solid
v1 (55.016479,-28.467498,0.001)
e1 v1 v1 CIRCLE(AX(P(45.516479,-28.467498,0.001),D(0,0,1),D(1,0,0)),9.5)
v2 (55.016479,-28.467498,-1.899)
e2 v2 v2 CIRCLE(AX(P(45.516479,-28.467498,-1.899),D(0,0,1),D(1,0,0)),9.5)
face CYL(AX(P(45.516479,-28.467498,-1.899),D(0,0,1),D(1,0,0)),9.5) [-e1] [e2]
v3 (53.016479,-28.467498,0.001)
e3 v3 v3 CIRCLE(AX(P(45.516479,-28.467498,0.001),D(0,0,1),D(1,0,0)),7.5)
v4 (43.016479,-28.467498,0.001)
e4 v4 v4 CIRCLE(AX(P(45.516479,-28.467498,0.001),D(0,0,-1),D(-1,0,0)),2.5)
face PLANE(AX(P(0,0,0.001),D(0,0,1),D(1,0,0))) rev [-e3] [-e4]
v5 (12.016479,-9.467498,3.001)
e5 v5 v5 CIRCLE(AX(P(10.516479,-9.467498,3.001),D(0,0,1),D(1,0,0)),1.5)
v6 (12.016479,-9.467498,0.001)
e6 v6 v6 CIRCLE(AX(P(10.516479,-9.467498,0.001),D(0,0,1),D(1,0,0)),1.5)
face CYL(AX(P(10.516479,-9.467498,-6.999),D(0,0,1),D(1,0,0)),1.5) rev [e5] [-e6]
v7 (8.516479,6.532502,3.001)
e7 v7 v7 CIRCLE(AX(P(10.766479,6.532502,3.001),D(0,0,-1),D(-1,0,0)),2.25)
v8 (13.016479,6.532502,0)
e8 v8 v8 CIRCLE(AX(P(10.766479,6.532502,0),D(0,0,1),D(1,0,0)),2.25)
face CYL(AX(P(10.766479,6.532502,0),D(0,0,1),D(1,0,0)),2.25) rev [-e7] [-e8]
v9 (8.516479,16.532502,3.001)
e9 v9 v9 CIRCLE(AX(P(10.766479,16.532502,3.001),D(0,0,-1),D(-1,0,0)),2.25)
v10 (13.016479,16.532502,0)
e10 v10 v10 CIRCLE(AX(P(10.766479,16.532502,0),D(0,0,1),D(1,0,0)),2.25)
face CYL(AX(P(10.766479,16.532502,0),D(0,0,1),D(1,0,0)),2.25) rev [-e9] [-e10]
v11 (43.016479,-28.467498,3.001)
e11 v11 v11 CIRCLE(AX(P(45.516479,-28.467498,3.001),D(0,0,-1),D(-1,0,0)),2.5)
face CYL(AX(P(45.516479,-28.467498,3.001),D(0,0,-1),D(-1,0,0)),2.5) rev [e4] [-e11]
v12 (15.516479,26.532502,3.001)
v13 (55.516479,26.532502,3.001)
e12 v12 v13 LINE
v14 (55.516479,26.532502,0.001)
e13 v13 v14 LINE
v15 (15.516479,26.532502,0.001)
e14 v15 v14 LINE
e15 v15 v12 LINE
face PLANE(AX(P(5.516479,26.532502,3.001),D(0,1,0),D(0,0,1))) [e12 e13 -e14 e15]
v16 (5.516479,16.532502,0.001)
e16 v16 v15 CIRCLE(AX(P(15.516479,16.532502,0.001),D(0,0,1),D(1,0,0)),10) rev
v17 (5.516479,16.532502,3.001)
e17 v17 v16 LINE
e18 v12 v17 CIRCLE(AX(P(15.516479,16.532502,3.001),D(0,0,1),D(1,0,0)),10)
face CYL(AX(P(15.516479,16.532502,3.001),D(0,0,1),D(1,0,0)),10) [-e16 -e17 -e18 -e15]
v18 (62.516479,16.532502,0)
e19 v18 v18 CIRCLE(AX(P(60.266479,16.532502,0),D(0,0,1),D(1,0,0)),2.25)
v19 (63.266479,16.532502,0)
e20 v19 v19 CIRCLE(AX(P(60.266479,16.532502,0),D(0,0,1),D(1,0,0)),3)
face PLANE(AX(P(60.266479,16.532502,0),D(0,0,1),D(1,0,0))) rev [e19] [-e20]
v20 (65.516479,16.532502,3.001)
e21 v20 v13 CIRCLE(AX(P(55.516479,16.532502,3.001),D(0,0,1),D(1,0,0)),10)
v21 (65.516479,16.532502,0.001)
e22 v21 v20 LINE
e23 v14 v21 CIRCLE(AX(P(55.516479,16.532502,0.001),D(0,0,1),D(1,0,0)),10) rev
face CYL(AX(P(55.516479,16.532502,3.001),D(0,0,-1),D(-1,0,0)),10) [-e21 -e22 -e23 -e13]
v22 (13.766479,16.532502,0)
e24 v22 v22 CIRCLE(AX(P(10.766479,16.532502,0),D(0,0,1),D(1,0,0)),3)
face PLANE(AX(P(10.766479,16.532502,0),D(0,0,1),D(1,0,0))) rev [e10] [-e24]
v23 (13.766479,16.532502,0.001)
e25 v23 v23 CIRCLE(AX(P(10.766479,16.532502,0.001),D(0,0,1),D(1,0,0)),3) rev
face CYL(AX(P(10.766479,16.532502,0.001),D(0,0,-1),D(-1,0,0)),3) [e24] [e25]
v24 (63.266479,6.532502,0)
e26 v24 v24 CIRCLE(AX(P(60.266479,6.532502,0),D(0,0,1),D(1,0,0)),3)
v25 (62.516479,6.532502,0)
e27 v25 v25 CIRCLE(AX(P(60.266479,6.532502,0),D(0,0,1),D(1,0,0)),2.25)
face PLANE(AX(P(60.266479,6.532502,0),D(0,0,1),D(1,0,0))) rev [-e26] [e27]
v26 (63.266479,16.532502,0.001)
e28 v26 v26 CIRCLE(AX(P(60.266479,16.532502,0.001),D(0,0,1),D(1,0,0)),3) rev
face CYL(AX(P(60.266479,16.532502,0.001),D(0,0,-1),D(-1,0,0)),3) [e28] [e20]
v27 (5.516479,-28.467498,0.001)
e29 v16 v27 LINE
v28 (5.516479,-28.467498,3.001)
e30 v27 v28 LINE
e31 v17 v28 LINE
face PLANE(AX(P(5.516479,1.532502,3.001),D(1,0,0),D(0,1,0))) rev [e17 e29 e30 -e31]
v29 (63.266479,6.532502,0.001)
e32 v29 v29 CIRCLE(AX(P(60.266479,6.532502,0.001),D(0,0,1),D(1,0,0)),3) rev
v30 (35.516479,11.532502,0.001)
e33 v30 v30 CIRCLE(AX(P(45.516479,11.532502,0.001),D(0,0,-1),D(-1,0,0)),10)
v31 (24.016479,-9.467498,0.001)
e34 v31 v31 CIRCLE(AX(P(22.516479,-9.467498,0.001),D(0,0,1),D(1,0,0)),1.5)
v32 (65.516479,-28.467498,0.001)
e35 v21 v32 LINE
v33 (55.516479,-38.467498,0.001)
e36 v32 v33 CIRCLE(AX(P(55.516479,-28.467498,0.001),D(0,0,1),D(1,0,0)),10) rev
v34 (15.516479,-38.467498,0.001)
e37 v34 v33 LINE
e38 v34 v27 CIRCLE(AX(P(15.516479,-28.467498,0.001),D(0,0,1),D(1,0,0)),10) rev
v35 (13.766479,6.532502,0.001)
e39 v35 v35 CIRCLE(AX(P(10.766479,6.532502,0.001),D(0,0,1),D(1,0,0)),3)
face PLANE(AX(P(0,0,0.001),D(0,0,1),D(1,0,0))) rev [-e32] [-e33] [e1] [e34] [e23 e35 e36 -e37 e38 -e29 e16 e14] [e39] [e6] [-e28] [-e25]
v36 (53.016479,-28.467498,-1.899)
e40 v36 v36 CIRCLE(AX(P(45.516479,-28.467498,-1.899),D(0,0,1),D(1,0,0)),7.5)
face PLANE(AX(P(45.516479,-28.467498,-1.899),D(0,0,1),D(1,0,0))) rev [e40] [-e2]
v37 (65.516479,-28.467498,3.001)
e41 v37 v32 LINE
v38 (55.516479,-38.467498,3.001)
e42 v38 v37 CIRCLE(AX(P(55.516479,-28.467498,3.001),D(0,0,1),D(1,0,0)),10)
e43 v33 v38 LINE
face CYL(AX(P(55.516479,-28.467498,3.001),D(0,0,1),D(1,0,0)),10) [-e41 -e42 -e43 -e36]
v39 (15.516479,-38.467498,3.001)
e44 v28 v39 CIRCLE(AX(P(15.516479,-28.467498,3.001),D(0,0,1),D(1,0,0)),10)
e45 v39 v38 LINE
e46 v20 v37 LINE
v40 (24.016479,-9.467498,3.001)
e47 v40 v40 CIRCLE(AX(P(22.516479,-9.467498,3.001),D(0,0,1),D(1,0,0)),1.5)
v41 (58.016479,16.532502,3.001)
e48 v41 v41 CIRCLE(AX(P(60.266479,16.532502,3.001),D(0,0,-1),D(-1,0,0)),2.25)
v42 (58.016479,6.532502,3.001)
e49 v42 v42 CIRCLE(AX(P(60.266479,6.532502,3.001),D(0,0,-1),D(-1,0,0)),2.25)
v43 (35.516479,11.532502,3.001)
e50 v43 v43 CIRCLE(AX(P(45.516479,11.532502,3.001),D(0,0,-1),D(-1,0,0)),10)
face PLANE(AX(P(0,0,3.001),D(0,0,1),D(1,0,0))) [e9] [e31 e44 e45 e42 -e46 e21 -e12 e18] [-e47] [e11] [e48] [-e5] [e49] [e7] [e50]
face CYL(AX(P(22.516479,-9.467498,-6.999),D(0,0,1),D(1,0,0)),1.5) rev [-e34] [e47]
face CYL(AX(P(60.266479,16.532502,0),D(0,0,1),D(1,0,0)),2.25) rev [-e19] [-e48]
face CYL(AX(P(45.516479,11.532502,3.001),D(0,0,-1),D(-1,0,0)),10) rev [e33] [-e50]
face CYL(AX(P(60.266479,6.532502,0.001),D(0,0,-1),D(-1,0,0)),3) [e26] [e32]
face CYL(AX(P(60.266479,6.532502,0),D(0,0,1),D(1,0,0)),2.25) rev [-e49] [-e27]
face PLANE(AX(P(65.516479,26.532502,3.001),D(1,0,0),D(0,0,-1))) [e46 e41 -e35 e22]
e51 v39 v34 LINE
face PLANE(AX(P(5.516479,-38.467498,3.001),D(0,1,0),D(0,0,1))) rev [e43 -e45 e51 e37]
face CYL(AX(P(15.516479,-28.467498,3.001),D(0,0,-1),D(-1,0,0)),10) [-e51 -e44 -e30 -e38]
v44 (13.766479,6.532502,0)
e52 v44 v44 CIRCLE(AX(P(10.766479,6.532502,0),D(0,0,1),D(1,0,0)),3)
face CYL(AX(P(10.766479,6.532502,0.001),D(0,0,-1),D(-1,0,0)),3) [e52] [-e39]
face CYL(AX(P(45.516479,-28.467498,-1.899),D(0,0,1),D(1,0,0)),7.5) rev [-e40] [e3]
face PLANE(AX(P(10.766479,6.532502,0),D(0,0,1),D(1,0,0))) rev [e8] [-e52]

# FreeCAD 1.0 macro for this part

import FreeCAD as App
import Part
import Sketcher
from FreeCAD import Vector
Q = App.Units.Quantity


def edges_at(feature, points):
    """Names of the edges that pass closest to the given points."""
    edges = feature.Shape.Edges
    near = lambda p: min(range(len(edges)), key=lambda i: edges[i].distToShape(Part.Vertex(*p))[0])
    return sorted({f"Edge{near(p) + 1}" for p in points})


def add_polygon(sketch, points):
    """Adds a closed chain of lines whose ends are joined by coincident constraints."""
    first, n = sketch.GeometryCount, len(points)
    for a, b in zip(points, points[1:] + points[:1]):
        sketch.addGeometry(Part.LineSegment(App.Vector(*a, 0), App.Vector(*b, 0)), False)
    for i in range(n):
        sketch.addConstraint(Sketcher.Constraint("Coincident", first + i, 2, first + (i + 1) % n, 1))

doc = App.newDocument("Part")
body = doc.addObject("PartDesign::Body", "Body")

# Sketch on XY plane
sketch1 = body.newObject("Sketcher::SketchObject", "Sketch")
sketch1.AttachmentSupport = (doc.getObject("XY_Plane"), [""])
sketch1.MapMode = "FlatFace"
sketch1.addGeometry(Part.Circle(Vector(60.266479, 16.532502, 0), Vector(0, 0, 1), 3), False)
sketch1.addConstraint(Sketcher.Constraint("Diameter", 0, Q("6 mm")))
sketch1.addConstraint(Sketcher.Constraint("DistanceY", -1, 1, 0, 3, Q("16.532502 mm")))
sketch1.addConstraint(Sketcher.Constraint("DistanceX", -1, 1, 0, 3, Q("60.266479 mm")))
pad1 = body.newObject("PartDesign::Pad", "Pad")
pad1.Profile = sketch1
pad1.Length = 0.001
body2 = doc.addObject("PartDesign::Body", "Body001")

# Sketch on XY plane
sketch2 = body2.newObject("Sketcher::SketchObject", "Sketch001")
sketch2.AttachmentSupport = (doc.getObject("XY_Plane001"), [""])
sketch2.MapMode = "FlatFace"
sketch2.addGeometry(Part.Circle(Vector(60.266479, 6.532502, 0), Vector(0, 0, 1), 3), False)
sketch2.addConstraint(Sketcher.Constraint("Diameter", 0, Q("6 mm")))
sketch2.addConstraint(Sketcher.Constraint("DistanceY", -1, 1, 0, 3, Q("6.532502 mm")))
sketch2.addConstraint(Sketcher.Constraint("DistanceX", -1, 1, 0, 3, Q("60.266479 mm")))
pad2 = body2.newObject("PartDesign::Pad", "Pad001")
pad2.Profile = sketch2
pad2.Length = 0.001
body3 = doc.addObject("PartDesign::Body", "Body002")

# Sketch on XY plane
sketch3 = body3.newObject("Sketcher::SketchObject", "Sketch002")
sketch3.AttachmentSupport = (doc.getObject("XY_Plane002"), [""])
sketch3.MapMode = "FlatFace"
sketch3.addGeometry(Part.Circle(Vector(10.766479, 6.532502, 0), Vector(0, 0, 1), 3), False)
sketch3.addConstraint(Sketcher.Constraint("Diameter", 0, Q("6 mm")))
sketch3.addConstraint(Sketcher.Constraint("DistanceY", -1, 1, 0, 3, Q("6.532502 mm")))
sketch3.addConstraint(Sketcher.Constraint("DistanceX", -1, 1, 0, 3, Q("10.766479 mm")))
pad3 = body3.newObject("PartDesign::Pad", "Pad002")
pad3.Profile = sketch3
pad3.Length = 0.001
body4 = doc.addObject("PartDesign::Body", "Body003")

# Sketch on XY plane
sketch4 = body4.newObject("Sketcher::SketchObject", "Sketch003")
sketch4.AttachmentSupport = (doc.getObject("XY_Plane003"), [""])
sketch4.MapMode = "FlatFace"
sketch4.addGeometry(Part.Circle(Vector(10.766479, 16.532502, 0), Vector(0, 0, 1), 3), False)
sketch4.addConstraint(Sketcher.Constraint("Diameter", 0, Q("6 mm")))
sketch4.addConstraint(Sketcher.Constraint("DistanceY", -1, 1, 0, 3, Q("16.532502 mm")))
sketch4.addConstraint(Sketcher.Constraint("DistanceX", -1, 1, 0, 3, Q("10.766479 mm")))
pad4 = body4.newObject("PartDesign::Pad", "Pad003")
pad4.Profile = sketch4
pad4.Length = 0.001
body5 = doc.addObject("PartDesign::Body", "Body004")
body5.AllowCompound = True

# Sketch on XY plane
sketch5 = body5.newObject("Sketcher::SketchObject", "Sketch004")
sketch5.AttachmentSupport = (doc.getObject("XY_Plane004"), [""])
sketch5.MapMode = "FlatFace"
sketch5.AttachmentOffset = App.Placement(Vector(0, 0, 0.001), App.Rotation())
sketch5.addGeometry(Part.Circle(Vector(10.766479, 16.532502, 0), Vector(0, 0, 1), 2.25), False)
sketch5.addGeometry(Part.Circle(Vector(10.766479, 6.532502, 0), Vector(0, 0, 1), 2.25), False)
sketch5.addGeometry(Part.Circle(Vector(60.266479, 16.532502, 0), Vector(0, 0, 1), 2.25), False)
sketch5.addGeometry(Part.Circle(Vector(60.266479, 6.532502, 0), Vector(0, 0, 1), 2.25), False)
sketch5.addConstraint(Sketcher.Constraint("Equal", 0, 1))
sketch5.addConstraint(Sketcher.Constraint("Equal", 1, 2))
sketch5.addConstraint(Sketcher.Constraint("Equal", 2, 3))
sketch5.addConstraint(Sketcher.Constraint("Horizontal", 0, 3, 2, 3))
sketch5.addConstraint(Sketcher.Constraint("Horizontal", 1, 3, 3, 3))
sketch5.addConstraint(Sketcher.Constraint("Vertical", 0, 3, 1, 3))
sketch5.addConstraint(Sketcher.Constraint("Vertical", 2, 3, 3, 3))
sketch5.addConstraint(Sketcher.Constraint("Diameter", 0, Q("4.5 mm")))
sketch5.addConstraint(Sketcher.Constraint("DistanceY", 1, 3, 0, 3, Q("10 mm")))
sketch5.addConstraint(Sketcher.Constraint("DistanceX", 0, 3, 2, 3, Q("49.5 mm")))
sketch5.addConstraint(Sketcher.Constraint("DistanceY", -1, 1, 0, 3, Q("16.532502 mm")))
sketch5.addConstraint(Sketcher.Constraint("DistanceX", -1, 1, 0, 3, Q("10.766479 mm")))
pad5 = body5.newObject("PartDesign::Pad", "Pad004")
pad5.Profile = sketch5
pad5.Type = "TwoLengths"
pad5.Length = 1
pad5.Length2 = 1.001
doc.recompute()

body6 = doc.addObject("PartDesign::Body", "Body005")
body6.BaseFeature = body5
boolean = body.newObject("PartDesign::Boolean", "Boolean")
boolean.Type = "Cut"
boolean.addObjects([body6])
doc.recompute()

body7 = doc.addObject("PartDesign::Body", "Body006")
body7.BaseFeature = body5
boolean2 = body2.newObject("PartDesign::Boolean", "Boolean001")
boolean2.Type = "Cut"
boolean2.addObjects([body7])
doc.recompute()

body8 = doc.addObject("PartDesign::Body", "Body007")
body8.BaseFeature = body5
boolean3 = body3.newObject("PartDesign::Boolean", "Boolean002")
boolean3.Type = "Cut"
boolean3.addObjects([body8])
doc.recompute()

boolean4 = body4.newObject("PartDesign::Boolean", "Boolean003")
boolean4.Type = "Cut"
boolean4.addObjects([body5])
body.AllowCompound = True
doc.recompute()

boolean5 = body.newObject("PartDesign::Boolean", "Boolean004")
boolean5.Type = "Fuse"
boolean5.addObjects([body2])
doc.recompute()

boolean6 = body.newObject("PartDesign::Boolean", "Boolean005")
boolean6.Type = "Fuse"
boolean6.addObjects([body3])
doc.recompute()

boolean7 = body.newObject("PartDesign::Boolean", "Boolean006")
boolean7.Type = "Fuse"
boolean7.addObjects([body4])

# Sketch on XY plane
sketch6 = body.newObject("Sketcher::SketchObject", "Sketch005")
sketch6.AttachmentSupport = (doc.getObject("XY_Plane"), [""])
sketch6.MapMode = "FlatFace"
sketch6.AttachmentOffset = App.Placement(Vector(0, 0, 0.001), App.Rotation())
add_polygon(sketch6, [(65.516479, 26.532502), (5.516479, 26.532502), (5.516479, -38.467498), (65.516479, -38.467498)])  # lines 0-3
sketch6.addConstraint(Sketcher.Constraint("Horizontal", 0))
sketch6.addConstraint(Sketcher.Constraint("Vertical", 1))
sketch6.addConstraint(Sketcher.Constraint("Horizontal", 2))
sketch6.addConstraint(Sketcher.Constraint("Vertical", 3))
sketch6.addConstraint(Sketcher.Constraint("DistanceX", 0, 2, 0, 1, Q("60 mm")))
sketch6.addConstraint(Sketcher.Constraint("DistanceY", 1, 2, 1, 1, Q("65 mm")))
sketch6.addConstraint(Sketcher.Constraint("DistanceY", -1, 1, 0, 2, Q("26.532502 mm")))
sketch6.addConstraint(Sketcher.Constraint("DistanceX", -1, 1, 0, 2, Q("5.516479 mm")))
pad6 = body.newObject("PartDesign::Pad", "Pad005")
pad6.Profile = sketch6
pad6.Length = 3

# Sketch on XY plane
sketch7 = body.newObject("Sketcher::SketchObject", "Sketch006")
sketch7.AttachmentSupport = (doc.getObject("XY_Plane"), [""])
sketch7.MapMode = "FlatFace"
sketch7.AttachmentOffset = App.Placement(Vector(0, 0, 0.001), App.Rotation())
sketch7.addGeometry(Part.Circle(Vector(60.266479, 6.532502, 0), Vector(0, 0, 1), 2.25), False)
sketch7.addGeometry(Part.Circle(Vector(60.266479, 16.532502, 0), Vector(0, 0, 1), 2.25), False)
sketch7.addGeometry(Part.Circle(Vector(10.766479, 6.532502, 0), Vector(0, 0, 1), 2.25), False)
sketch7.addGeometry(Part.Circle(Vector(10.766479, 16.532502, 0), Vector(0, 0, 1), 2.25), False)
sketch7.addGeometry(Part.Circle(Vector(45.516479, 11.532502, 0), Vector(0, 0, 1), 10), False)
sketch7.addConstraint(Sketcher.Constraint("Equal", 0, 1))
sketch7.addConstraint(Sketcher.Constraint("Equal", 1, 2))
sketch7.addConstraint(Sketcher.Constraint("Equal", 2, 3))
sketch7.addConstraint(Sketcher.Constraint("Horizontal", 0, 3, 2, 3))
sketch7.addConstraint(Sketcher.Constraint("Horizontal", 1, 3, 3, 3))
sketch7.addConstraint(Sketcher.Constraint("Vertical", 0, 3, 1, 3))
sketch7.addConstraint(Sketcher.Constraint("Vertical", 2, 3, 3, 3))
sketch7.addConstraint(Sketcher.Constraint("Diameter", 4, Q("20 mm")))
sketch7.addConstraint(Sketcher.Constraint("Diameter", 0, Q("4.5 mm")))
sketch7.addConstraint(Sketcher.Constraint("DistanceY", 0, 3, 1, 3, Q("10 mm")))
sketch7.addConstraint(Sketcher.Constraint("DistanceY", 0, 3, 4, 3, Q("5 mm")))
sketch7.addConstraint(Sketcher.Constraint("DistanceX", 2, 3, 0, 3, Q("49.5 mm")))
sketch7.addConstraint(Sketcher.Constraint("DistanceX", 4, 3, 0, 3, Q("14.75 mm")))
sketch7.addConstraint(Sketcher.Constraint("DistanceY", -1, 1, 0, 3, Q("6.532502 mm")))
sketch7.addConstraint(Sketcher.Constraint("DistanceX", -1, 1, 0, 3, Q("60.266479 mm")))
pocket1 = body.newObject("PartDesign::Pocket", "Pocket")
pocket1.Profile = sketch7
pocket1.Length = 3
pocket1.Reversed = True

# Sketch on XY plane
sketch8 = body.newObject("Sketcher::SketchObject", "Sketch007")
sketch8.AttachmentSupport = (doc.getObject("XY_Plane"), [""])
sketch8.MapMode = "FlatFace"
sketch8.AttachmentOffset = App.Placement(Vector(0, 0, 0.001), App.Rotation())
sketch8.addGeometry(Part.Circle(Vector(45.516479, 11.532502, 0), Vector(0, 0, 1), 10), False)
sketch8.addGeometry(Part.Circle(Vector(45.516479, -28.467498, 0), Vector(0, 0, 1), 2.5), False)
sketch8.addConstraint(Sketcher.Constraint("Vertical", 0, 3, 1, 3))
sketch8.addConstraint(Sketcher.Constraint("Diameter", 0, Q("20 mm")))
sketch8.addConstraint(Sketcher.Constraint("Diameter", 1, Q("5 mm")))
sketch8.addConstraint(Sketcher.Constraint("DistanceY", 1, 3, 0, 3, Q("40 mm")))
sketch8.addConstraint(Sketcher.Constraint("DistanceY", -1, 1, 0, 3, Q("11.532502 mm")))
sketch8.addConstraint(Sketcher.Constraint("DistanceX", -1, 1, 0, 3, Q("45.516479 mm")))
pocket2 = body.newObject("PartDesign::Pocket", "Pocket001")
pocket2.Profile = sketch8
pocket2.Length = 3
pocket2.Reversed = True

# Sketch on XY plane
sketch9 = body.newObject("Sketcher::SketchObject", "Sketch008")
sketch9.AttachmentSupport = (doc.getObject("XY_Plane"), [""])
sketch9.MapMode = "FlatFace"
sketch9.AttachmentOffset = App.Placement(Vector(0, 0, 3.001), App.Rotation())
sketch9.addGeometry(Part.Circle(Vector(10.516479, -9.467498, 0), Vector(0, 0, 1), 1.5), False)
sketch9.addGeometry(Part.Circle(Vector(22.516479, -9.467498, 0), Vector(0, 0, 1), 1.5), False)
sketch9.addConstraint(Sketcher.Constraint("Equal", 0, 1))
sketch9.addConstraint(Sketcher.Constraint("Horizontal", 0, 3, 1, 3))
sketch9.addConstraint(Sketcher.Constraint("Diameter", 0, Q("3 mm")))
sketch9.addConstraint(Sketcher.Constraint("DistanceX", 0, 3, 1, 3, Q("12 mm")))
sketch9.addConstraint(Sketcher.Constraint("DistanceY", 0, 3, -1, 1, Q("9.467498 mm")))
sketch9.addConstraint(Sketcher.Constraint("DistanceX", -1, 1, 0, 3, Q("10.516479 mm")))
pocket3 = body.newObject("PartDesign::Pocket", "Pocket002")
pocket3.Profile = sketch9
pocket3.Length = 10

# Sketch on XY plane
sketch10 = body.newObject("Sketcher::SketchObject", "Sketch009")
sketch10.AttachmentSupport = (doc.getObject("XY_Plane"), [""])
sketch10.MapMode = "FlatFace"
sketch10.AttachmentOffset = App.Placement(Vector(0, 0, 3.001), App.Rotation())
sketch10.addGeometry(Part.Circle(Vector(45.516479, -28.467498, 0), Vector(0, 0, 1), 9.5), False)
sketch10.addGeometry(Part.Circle(Vector(45.516479, -28.467498, 0), Vector(0, 0, 1), 7.5), False)
sketch10.addConstraint(Sketcher.Constraint("Coincident", 1, 3, 0, 3))
sketch10.addConstraint(Sketcher.Constraint("Diameter", 0, Q("19 mm")))
sketch10.addConstraint(Sketcher.Constraint("Diameter", 1, Q("15 mm")))
sketch10.addConstraint(Sketcher.Constraint("DistanceY", 0, 3, -1, 1, Q("28.467498 mm")))
sketch10.addConstraint(Sketcher.Constraint("DistanceX", -1, 1, 0, 3, Q("45.516479 mm")))
pad7 = body.newObject("PartDesign::Pad", "Pad006")
pad7.Profile = sketch10
pad7.Length = 4.9
pad7.Reversed = True
doc.recompute()

fillet = body.newObject("PartDesign::Fillet", "Fillet")
fillet.Base = (pad7, edges_at(pad7, [
    (5.516, 26.533, 1.501),
    (5.516, -38.467, 1.501),
    (65.516, -38.467, 1.501),
    (65.516, 26.533, 1.501),
]))
fillet.Radius = 10

doc.recompute()
